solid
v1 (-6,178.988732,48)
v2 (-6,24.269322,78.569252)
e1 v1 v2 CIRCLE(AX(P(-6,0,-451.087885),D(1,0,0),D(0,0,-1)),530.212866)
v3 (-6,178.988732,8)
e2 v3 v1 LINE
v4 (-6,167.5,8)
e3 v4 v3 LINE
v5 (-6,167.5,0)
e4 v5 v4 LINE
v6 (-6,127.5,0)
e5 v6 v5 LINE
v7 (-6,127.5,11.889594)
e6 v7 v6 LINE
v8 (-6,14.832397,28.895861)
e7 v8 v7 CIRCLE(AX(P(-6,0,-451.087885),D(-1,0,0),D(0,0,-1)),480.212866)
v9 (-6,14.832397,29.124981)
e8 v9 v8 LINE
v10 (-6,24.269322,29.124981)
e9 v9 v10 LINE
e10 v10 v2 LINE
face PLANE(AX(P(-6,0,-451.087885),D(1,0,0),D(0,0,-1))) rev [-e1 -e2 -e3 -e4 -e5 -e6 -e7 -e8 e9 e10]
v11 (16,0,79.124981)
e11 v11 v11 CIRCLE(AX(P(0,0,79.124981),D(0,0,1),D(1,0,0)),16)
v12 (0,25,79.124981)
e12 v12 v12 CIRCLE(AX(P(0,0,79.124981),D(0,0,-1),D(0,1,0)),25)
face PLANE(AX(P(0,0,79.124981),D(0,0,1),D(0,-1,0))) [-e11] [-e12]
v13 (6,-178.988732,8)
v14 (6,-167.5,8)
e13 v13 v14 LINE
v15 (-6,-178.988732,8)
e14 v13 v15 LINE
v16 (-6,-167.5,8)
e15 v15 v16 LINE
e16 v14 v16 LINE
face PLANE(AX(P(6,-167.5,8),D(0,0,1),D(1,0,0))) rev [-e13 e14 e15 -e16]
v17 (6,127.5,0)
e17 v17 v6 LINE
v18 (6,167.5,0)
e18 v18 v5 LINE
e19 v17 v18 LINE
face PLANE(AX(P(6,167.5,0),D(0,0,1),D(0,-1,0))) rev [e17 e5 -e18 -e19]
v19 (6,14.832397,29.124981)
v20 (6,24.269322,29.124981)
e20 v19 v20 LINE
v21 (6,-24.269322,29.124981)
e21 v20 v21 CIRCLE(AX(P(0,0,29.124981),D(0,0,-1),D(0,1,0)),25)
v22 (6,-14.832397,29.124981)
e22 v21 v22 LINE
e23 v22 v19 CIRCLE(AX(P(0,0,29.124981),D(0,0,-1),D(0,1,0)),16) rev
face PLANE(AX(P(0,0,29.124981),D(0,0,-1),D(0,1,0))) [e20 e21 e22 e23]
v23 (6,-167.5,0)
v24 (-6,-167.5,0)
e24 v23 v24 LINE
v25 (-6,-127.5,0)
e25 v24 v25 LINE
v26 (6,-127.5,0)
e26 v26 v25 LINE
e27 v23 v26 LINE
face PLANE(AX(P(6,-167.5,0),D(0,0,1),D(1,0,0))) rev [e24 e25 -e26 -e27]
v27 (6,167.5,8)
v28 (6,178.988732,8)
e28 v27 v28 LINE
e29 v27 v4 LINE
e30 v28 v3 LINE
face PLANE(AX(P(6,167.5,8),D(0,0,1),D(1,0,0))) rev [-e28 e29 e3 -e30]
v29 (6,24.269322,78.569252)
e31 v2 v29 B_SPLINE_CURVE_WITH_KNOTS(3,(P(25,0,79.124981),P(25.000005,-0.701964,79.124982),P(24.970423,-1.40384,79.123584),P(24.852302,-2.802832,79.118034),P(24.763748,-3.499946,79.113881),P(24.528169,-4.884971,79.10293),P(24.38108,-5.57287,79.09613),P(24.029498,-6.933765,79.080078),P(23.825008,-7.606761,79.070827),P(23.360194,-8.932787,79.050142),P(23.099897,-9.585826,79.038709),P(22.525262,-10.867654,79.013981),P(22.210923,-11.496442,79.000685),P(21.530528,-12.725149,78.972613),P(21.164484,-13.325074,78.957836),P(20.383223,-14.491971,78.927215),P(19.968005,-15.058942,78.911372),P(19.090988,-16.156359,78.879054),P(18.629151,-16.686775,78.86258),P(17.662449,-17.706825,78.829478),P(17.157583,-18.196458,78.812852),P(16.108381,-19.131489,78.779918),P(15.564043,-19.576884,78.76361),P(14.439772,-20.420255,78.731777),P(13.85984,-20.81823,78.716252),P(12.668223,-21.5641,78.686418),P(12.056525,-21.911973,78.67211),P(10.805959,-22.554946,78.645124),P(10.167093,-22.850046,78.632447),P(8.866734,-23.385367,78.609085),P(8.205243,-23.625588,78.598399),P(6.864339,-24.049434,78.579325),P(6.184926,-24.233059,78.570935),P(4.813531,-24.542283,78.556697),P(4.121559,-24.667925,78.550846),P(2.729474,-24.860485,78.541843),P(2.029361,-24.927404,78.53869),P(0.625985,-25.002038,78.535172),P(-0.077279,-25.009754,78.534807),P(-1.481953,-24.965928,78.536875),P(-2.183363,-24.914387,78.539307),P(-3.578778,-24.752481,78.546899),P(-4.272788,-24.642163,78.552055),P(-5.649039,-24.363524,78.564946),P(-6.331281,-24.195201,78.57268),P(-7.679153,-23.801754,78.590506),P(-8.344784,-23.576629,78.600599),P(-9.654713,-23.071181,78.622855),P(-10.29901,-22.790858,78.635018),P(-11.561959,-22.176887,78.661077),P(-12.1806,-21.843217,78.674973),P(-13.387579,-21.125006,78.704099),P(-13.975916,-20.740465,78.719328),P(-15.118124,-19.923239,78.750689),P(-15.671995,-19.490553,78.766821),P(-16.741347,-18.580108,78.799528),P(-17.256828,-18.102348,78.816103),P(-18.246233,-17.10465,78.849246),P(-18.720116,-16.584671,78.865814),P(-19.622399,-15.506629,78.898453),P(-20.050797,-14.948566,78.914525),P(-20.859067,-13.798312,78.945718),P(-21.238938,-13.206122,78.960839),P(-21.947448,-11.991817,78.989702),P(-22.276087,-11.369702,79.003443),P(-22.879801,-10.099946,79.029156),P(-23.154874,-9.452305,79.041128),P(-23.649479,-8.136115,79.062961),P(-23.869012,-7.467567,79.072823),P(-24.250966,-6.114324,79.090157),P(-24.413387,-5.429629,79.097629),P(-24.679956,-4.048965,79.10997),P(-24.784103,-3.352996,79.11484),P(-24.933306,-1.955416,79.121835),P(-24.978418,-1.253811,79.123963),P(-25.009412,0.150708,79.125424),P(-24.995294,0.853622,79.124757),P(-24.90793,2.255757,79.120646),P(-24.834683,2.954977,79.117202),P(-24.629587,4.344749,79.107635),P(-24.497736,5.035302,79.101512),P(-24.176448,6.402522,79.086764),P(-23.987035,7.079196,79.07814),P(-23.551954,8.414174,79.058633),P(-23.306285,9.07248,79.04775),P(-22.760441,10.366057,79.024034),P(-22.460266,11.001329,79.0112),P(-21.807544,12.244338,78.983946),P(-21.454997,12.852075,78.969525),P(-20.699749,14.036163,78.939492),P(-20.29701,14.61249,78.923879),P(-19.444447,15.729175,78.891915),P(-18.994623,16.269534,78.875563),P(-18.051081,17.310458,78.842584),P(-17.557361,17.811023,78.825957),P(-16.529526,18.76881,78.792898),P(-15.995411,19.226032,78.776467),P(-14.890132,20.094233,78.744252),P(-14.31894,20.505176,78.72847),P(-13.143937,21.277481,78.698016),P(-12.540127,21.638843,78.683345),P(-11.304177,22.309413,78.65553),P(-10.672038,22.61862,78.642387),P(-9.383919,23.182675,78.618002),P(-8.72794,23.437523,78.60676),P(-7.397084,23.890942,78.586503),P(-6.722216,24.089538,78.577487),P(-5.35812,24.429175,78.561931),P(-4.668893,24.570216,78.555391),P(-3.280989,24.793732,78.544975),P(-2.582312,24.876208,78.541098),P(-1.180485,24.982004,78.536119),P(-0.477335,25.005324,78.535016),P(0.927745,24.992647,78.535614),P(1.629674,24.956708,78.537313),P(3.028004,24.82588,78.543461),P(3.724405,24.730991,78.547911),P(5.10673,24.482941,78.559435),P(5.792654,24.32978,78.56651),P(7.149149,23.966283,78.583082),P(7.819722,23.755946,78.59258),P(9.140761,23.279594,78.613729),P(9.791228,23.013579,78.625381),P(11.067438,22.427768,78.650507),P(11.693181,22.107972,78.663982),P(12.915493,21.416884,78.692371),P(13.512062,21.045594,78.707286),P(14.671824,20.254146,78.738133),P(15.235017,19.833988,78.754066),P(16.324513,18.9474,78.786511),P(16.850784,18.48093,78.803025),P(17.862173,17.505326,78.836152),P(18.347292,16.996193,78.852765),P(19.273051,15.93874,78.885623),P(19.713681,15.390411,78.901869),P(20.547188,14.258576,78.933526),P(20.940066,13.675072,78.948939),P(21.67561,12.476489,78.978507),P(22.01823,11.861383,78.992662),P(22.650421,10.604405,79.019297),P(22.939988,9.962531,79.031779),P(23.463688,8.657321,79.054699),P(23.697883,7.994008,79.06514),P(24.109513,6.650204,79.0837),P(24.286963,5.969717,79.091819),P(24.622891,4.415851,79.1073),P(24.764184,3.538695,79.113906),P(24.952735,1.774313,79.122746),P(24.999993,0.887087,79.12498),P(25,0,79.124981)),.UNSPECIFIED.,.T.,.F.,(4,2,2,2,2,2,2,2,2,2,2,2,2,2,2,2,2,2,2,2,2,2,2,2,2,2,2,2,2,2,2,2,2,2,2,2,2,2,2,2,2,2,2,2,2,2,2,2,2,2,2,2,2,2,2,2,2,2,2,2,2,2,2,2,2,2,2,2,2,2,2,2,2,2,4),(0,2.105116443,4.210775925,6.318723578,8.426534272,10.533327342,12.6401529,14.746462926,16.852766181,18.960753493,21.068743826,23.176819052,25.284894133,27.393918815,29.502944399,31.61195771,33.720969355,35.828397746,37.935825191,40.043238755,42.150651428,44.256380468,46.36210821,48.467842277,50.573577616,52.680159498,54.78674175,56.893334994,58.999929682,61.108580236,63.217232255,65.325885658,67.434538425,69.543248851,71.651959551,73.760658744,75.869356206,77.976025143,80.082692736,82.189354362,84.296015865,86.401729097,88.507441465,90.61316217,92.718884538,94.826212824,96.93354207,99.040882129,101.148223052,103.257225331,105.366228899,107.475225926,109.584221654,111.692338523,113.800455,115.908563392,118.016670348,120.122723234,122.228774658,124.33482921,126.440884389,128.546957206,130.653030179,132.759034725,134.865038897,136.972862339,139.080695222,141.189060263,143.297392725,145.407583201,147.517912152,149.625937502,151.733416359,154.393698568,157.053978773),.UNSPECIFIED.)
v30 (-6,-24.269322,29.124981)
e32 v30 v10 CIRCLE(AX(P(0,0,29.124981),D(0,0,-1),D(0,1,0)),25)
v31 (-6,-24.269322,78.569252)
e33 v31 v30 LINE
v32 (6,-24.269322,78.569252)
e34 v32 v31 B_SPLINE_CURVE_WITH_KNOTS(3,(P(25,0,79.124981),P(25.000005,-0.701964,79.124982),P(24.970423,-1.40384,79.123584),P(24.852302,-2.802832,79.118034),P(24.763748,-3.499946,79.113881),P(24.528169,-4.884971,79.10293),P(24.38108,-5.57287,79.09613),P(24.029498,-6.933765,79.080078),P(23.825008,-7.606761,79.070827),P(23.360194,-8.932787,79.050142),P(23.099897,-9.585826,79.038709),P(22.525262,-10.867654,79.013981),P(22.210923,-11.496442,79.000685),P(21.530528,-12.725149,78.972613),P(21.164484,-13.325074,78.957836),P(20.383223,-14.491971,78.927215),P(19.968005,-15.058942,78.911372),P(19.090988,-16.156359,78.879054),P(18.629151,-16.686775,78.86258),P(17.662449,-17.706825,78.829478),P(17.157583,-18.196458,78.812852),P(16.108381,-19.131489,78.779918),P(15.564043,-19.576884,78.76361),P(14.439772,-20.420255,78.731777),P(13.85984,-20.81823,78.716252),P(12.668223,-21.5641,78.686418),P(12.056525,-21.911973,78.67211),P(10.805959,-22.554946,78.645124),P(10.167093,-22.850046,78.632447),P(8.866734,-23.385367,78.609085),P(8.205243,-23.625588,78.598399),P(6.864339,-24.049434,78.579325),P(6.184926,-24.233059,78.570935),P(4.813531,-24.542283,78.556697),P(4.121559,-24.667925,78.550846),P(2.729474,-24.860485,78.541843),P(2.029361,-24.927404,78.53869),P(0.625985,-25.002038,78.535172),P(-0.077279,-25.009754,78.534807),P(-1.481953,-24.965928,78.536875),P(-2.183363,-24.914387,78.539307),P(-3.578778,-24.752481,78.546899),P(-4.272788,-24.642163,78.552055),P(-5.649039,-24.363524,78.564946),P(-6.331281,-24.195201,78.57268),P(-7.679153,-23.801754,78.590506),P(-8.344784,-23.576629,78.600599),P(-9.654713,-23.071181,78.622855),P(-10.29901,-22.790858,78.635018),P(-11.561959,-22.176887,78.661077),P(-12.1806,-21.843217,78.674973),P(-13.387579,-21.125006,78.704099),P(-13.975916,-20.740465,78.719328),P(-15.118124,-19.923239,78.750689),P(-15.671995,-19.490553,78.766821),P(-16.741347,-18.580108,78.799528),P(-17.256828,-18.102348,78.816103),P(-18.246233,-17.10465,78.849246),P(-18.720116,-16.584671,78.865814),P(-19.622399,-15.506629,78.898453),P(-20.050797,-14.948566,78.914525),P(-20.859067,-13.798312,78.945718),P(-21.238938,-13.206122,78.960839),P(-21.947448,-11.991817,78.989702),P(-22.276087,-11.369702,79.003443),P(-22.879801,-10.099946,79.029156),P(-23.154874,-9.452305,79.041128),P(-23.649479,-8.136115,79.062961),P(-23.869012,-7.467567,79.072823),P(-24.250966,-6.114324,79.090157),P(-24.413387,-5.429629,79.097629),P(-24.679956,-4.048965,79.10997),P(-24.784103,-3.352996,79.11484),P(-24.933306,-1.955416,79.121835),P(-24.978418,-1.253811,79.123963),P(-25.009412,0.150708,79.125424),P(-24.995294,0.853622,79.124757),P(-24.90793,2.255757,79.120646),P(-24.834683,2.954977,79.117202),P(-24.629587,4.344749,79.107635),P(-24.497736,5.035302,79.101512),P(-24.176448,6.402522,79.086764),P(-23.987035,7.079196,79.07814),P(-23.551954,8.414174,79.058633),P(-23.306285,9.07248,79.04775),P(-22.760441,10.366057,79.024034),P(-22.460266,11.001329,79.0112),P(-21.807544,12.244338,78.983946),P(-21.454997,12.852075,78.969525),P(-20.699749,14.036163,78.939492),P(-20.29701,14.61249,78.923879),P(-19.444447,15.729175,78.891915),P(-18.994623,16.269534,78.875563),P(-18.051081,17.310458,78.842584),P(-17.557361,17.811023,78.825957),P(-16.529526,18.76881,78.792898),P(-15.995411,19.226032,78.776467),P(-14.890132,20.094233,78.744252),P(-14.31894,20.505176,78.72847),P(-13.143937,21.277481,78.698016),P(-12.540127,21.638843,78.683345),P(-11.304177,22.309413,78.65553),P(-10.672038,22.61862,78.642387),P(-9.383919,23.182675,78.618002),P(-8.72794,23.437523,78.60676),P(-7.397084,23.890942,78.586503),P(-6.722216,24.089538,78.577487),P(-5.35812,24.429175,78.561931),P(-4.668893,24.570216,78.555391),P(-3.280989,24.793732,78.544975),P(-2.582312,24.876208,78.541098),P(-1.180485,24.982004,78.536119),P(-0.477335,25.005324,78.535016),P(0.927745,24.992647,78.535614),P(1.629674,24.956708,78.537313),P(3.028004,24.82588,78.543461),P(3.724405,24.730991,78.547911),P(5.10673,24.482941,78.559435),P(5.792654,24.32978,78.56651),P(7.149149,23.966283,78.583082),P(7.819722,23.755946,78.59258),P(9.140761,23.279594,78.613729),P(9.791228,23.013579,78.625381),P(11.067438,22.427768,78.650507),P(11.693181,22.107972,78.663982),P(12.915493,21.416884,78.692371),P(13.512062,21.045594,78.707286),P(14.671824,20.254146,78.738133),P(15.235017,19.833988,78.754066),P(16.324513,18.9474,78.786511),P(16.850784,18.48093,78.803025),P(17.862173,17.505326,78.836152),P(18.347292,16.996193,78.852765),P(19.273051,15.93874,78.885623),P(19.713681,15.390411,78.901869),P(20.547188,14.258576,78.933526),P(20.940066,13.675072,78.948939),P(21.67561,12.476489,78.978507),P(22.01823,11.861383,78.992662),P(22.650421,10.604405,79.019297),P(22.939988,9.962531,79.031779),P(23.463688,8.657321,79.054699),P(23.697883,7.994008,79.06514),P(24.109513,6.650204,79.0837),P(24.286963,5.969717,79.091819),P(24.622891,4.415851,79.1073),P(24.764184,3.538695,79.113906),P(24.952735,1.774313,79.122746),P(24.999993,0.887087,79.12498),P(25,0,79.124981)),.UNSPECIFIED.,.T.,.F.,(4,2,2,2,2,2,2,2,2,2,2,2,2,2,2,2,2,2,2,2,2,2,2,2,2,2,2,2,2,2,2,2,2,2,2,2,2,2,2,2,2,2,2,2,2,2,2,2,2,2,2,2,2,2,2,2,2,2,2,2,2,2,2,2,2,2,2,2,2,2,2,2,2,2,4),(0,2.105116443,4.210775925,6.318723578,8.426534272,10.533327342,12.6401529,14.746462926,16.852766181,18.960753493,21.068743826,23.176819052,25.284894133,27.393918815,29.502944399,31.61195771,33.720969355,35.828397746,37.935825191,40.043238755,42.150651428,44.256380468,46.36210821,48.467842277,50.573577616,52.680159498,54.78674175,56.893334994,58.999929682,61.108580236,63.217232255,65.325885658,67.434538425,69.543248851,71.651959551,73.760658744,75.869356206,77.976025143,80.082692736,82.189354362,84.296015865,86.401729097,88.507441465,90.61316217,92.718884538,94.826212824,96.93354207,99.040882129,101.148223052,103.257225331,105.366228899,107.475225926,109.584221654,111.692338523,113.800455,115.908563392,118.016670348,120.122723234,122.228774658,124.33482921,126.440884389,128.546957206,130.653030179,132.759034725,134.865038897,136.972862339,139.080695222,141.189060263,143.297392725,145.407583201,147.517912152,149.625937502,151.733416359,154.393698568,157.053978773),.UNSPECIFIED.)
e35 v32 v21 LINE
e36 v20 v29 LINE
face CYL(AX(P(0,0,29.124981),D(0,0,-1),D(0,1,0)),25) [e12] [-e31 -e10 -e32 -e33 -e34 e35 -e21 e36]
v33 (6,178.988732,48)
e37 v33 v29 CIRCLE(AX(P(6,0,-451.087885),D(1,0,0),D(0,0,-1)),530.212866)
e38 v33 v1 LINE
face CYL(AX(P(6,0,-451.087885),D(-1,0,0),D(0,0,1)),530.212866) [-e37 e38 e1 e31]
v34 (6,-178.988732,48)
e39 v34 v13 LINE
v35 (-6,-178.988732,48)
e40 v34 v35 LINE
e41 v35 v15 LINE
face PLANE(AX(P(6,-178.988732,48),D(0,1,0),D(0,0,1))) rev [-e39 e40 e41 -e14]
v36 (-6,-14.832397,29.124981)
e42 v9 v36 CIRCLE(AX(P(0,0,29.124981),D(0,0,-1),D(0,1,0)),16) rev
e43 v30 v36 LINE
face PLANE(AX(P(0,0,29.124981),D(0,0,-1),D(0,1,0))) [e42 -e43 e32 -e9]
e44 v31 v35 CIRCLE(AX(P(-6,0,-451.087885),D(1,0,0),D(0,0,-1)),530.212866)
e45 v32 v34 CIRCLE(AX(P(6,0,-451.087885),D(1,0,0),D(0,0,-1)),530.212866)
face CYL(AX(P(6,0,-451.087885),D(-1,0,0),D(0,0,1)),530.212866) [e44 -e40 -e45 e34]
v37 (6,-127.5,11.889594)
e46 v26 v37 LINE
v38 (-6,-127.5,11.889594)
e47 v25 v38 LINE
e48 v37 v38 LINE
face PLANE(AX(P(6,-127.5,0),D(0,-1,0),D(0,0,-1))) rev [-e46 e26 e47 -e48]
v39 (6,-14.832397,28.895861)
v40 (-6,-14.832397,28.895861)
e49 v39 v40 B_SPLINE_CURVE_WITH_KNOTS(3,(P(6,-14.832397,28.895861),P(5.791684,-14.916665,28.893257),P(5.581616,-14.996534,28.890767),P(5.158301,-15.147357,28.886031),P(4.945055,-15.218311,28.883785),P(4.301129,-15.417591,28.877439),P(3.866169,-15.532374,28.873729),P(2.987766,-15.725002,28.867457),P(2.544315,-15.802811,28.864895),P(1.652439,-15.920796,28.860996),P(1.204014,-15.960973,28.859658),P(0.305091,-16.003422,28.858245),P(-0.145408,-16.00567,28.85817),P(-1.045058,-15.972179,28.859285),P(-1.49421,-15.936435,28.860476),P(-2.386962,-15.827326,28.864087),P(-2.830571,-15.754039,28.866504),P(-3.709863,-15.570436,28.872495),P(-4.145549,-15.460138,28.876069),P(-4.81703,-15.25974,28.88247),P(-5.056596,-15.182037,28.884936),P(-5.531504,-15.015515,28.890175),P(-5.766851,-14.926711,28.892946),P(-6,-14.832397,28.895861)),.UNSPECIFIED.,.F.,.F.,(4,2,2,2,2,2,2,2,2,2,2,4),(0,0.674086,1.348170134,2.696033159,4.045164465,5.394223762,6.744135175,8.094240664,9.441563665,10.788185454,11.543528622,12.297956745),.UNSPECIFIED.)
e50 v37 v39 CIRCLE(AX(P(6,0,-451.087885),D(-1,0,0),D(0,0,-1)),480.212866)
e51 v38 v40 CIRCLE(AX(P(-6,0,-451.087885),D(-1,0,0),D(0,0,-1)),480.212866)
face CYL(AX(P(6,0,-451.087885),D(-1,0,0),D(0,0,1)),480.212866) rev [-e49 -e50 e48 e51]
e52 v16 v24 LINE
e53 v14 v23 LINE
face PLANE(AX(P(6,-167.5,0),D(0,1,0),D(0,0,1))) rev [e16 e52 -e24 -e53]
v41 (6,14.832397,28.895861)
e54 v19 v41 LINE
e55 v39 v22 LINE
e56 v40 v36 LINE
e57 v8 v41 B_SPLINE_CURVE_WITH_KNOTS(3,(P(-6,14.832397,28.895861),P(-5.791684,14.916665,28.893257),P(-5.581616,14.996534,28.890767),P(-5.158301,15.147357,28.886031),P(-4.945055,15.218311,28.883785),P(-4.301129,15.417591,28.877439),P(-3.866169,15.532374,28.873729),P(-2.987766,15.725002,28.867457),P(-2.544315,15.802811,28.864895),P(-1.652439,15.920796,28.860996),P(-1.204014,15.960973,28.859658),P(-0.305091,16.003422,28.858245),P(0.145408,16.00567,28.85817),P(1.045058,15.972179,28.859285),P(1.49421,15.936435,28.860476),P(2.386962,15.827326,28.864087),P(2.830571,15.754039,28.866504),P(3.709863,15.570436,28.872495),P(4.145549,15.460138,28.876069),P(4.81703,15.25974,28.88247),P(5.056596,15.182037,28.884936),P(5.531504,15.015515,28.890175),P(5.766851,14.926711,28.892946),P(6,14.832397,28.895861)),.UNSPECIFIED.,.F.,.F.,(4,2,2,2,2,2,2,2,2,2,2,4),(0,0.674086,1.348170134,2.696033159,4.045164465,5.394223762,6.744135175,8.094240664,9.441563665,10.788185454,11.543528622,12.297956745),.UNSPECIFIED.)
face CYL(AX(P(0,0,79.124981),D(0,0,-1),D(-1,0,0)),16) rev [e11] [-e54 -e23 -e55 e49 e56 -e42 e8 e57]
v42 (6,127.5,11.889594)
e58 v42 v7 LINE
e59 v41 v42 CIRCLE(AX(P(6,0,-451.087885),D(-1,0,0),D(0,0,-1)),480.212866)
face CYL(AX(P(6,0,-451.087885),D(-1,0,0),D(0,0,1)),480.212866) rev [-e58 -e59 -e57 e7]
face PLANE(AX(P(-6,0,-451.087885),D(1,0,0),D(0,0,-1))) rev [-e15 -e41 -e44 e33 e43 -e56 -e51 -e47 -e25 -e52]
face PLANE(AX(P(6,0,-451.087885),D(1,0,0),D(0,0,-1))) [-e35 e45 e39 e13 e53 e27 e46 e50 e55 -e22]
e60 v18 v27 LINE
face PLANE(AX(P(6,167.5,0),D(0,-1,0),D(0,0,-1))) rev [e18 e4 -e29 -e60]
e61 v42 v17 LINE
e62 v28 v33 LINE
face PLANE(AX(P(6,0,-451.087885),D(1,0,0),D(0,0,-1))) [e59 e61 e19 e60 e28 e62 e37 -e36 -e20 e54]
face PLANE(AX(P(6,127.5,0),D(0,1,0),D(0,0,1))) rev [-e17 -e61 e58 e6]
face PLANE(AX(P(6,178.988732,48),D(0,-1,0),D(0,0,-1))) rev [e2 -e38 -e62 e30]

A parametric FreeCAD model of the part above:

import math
import FreeCAD as App
import Part
import Sketcher
Q = App.Units.Quantity

doc = App.newDocument("Part")
body = doc.addObject("PartDesign::Body", "Body")

# Sketch on YZ plane
sketch1 = body.newObject("Sketcher::SketchObject", "Sketch")
sketch1.AttachmentSupport = (doc.getObject("YZ_Plane"), [""])
sketch1.MapMode = "FlatFace"
sketch1.addGeometry([
    Part.LineSegment(App.Vector(168, 0, 0), App.Vector(168, 8, 0)),  # 0
    Part.LineSegment(App.Vector(168, 8, 0), App.Vector(179, 8, 0)),  # 1
    Part.LineSegment(App.Vector(179, 8, 0), App.Vector(179, 48, 0)),  # 2
    Part.ArcOfCircle(Part.Circle(App.Vector(0, -451, 0), App.Vector(0, 0, 1), 530), math.radians(70), math.radians(110)),  # 3
    Part.LineSegment(App.Vector(-179, 48, 0), App.Vector(-179, 8, 0)),  # 4
    Part.LineSegment(App.Vector(-179, 8, 0), App.Vector(-168, 8, 0)),  # 5
    Part.LineSegment(App.Vector(-168, 8, 0), App.Vector(-168, 0, 0)),  # 6
    Part.LineSegment(App.Vector(-168, 0, 0), App.Vector(-128, 0, 0)),  # 7
    Part.LineSegment(App.Vector(-128, 0, 0), App.Vector(-128, 12, 0)),  # 8
    Part.ArcOfCircle(Part.Circle(App.Vector(0, -451, 0), App.Vector(0, 0, 1), 480), math.radians(75), math.radians(105)),  # 9
    Part.LineSegment(App.Vector(128, 12, 0), App.Vector(128, 0, 0)),  # 10
    Part.LineSegment(App.Vector(128, 0, 0), App.Vector(168, 0, 0)),  # 11
], False)
sketch1.addConstraint([
    Sketcher.Constraint("Coincident", 0, 2, 1, 1),
    Sketcher.Constraint("Coincident", 1, 2, 2, 1),
    Sketcher.Constraint("Coincident", 2, 2, 3, 1),
    Sketcher.Constraint("Coincident", 3, 2, 4, 1),
    Sketcher.Constraint("Coincident", 4, 2, 5, 1),
    Sketcher.Constraint("Coincident", 5, 2, 6, 1),
    Sketcher.Constraint("Coincident", 6, 2, 7, 1),
    Sketcher.Constraint("Coincident", 7, 2, 8, 1),
    Sketcher.Constraint("Coincident", 8, 2, 9, 2),
    Sketcher.Constraint("Coincident", 9, 1, 10, 1),
    Sketcher.Constraint("Coincident", 10, 2, 11, 1),
    Sketcher.Constraint("Coincident", 11, 2, 0, 1),
    Sketcher.Constraint("Vertical", 0),
    Sketcher.Constraint("Horizontal", 1),
    Sketcher.Constraint("Vertical", 2),
    Sketcher.Constraint("Vertical", 4),
    Sketcher.Constraint("Horizontal", 5),
    Sketcher.Constraint("Vertical", 6),
    Sketcher.Constraint("Horizontal", 7),
    Sketcher.Constraint("Vertical", 8),
    Sketcher.Constraint("Vertical", 10),
    Sketcher.Constraint("Horizontal", 11),
    Sketcher.Constraint("Coincident", 9, 3, 3, 3),
    Sketcher.Constraint("Symmetric", 7, 2, 10, 2, -1, 1),
    Sketcher.Constraint("Symmetric", 1, 2, 4, 2, -2),
    Sketcher.Constraint("Symmetric", 6, 2, 11, 2, -2),
    Sketcher.Constraint("PointOnObject", 3, 3, -2),
    Sketcher.Constraint("Equal", 11, 2),
    Sketcher.Constraint("DistanceX", 7, 1, 7, 2, Q("40 mm")),
    Sketcher.Constraint("DistanceY", 0, 1, 0, 2, Q("8 mm")),
    Sketcher.Constraint("DistanceX", 5, 2, 0, 2, Q("335 mm")),
    Sketcher.Constraint("Radius", 3, Q("530.212866 mm")),
    Sketcher.Constraint("Radius", 9, Q("480.212866 mm")),
    Sketcher.Constraint("DistanceX", 1, 1, 1, 2, Q("11.488732 mm")),
])
pad1 = body.newObject("PartDesign::Pad", "Pad")
pad1.Profile = sketch1
pad1.Length = 12
pad1.Midplane = True

# Sketch on YZ plane
sketch2 = body.newObject("Sketcher::SketchObject", "Sketch001")
sketch2.AttachmentSupport = (doc.getObject("YZ_Plane"), [""])
sketch2.MapMode = "FlatFace"
sketch2.addGeometry([
    Part.LineSegment(App.Vector(25, 79, 0), App.Vector(0, 79, 0)),
    Part.LineSegment(App.Vector(0, 79, 0), App.Vector(0, 29, 0)),
    Part.LineSegment(App.Vector(0, 29, 0), App.Vector(25, 29, 0)),
    Part.LineSegment(App.Vector(25, 29, 0), App.Vector(25, 79, 0)),
], False)
sketch2.addConstraint([
    Sketcher.Constraint("Coincident", 0, 2, 1, 1),
    Sketcher.Constraint("Coincident", 1, 2, 2, 1),
    Sketcher.Constraint("Coincident", 2, 2, 3, 1),
    Sketcher.Constraint("Coincident", 3, 2, 0, 1),
    Sketcher.Constraint("Horizontal", 0),
    Sketcher.Constraint("Vertical", 1),
    Sketcher.Constraint("Horizontal", 2),
    Sketcher.Constraint("Vertical", 3),
    Sketcher.Constraint("PointOnObject", 0, 2, -2),
    Sketcher.Constraint("DistanceX", 0, 2, 0, 1, Q("25 mm")),
    Sketcher.Constraint("DistanceY", 1, 2, 1, 1, Q("50 mm")),
    Sketcher.Constraint("DistanceY", -1, 1, 0, 2, Q("79.124981 mm")),
])
revolution = body.newObject("PartDesign::Revolution", "Revolution")
revolution.Profile = sketch2
revolution.ReferenceAxis = (sketch2, ["V_Axis"])
revolution.Angle = 360

# Sketch on XY plane
sketch3 = body.newObject("Sketcher::SketchObject", "Sketch002")
sketch3.AttachmentSupport = (doc.getObject("XY_Plane"), [""])
sketch3.MapMode = "FlatFace"
sketch3.addGeometry(Part.Circle(App.Vector(0, 0, 0), App.Vector(0, 0, 1), 16), False)
sketch3.addConstraint([
    Sketcher.Constraint("Coincident", 0, 3, -1, 1),
    Sketcher.Constraint("Diameter", 0, Q("32 mm")),
])
pocket1 = body.newObject("PartDesign::Pocket", "Pocket")
pocket1.Profile = sketch3
pocket1.Type = "ThroughAll"
pocket1.Reversed = True

doc.recompute()
